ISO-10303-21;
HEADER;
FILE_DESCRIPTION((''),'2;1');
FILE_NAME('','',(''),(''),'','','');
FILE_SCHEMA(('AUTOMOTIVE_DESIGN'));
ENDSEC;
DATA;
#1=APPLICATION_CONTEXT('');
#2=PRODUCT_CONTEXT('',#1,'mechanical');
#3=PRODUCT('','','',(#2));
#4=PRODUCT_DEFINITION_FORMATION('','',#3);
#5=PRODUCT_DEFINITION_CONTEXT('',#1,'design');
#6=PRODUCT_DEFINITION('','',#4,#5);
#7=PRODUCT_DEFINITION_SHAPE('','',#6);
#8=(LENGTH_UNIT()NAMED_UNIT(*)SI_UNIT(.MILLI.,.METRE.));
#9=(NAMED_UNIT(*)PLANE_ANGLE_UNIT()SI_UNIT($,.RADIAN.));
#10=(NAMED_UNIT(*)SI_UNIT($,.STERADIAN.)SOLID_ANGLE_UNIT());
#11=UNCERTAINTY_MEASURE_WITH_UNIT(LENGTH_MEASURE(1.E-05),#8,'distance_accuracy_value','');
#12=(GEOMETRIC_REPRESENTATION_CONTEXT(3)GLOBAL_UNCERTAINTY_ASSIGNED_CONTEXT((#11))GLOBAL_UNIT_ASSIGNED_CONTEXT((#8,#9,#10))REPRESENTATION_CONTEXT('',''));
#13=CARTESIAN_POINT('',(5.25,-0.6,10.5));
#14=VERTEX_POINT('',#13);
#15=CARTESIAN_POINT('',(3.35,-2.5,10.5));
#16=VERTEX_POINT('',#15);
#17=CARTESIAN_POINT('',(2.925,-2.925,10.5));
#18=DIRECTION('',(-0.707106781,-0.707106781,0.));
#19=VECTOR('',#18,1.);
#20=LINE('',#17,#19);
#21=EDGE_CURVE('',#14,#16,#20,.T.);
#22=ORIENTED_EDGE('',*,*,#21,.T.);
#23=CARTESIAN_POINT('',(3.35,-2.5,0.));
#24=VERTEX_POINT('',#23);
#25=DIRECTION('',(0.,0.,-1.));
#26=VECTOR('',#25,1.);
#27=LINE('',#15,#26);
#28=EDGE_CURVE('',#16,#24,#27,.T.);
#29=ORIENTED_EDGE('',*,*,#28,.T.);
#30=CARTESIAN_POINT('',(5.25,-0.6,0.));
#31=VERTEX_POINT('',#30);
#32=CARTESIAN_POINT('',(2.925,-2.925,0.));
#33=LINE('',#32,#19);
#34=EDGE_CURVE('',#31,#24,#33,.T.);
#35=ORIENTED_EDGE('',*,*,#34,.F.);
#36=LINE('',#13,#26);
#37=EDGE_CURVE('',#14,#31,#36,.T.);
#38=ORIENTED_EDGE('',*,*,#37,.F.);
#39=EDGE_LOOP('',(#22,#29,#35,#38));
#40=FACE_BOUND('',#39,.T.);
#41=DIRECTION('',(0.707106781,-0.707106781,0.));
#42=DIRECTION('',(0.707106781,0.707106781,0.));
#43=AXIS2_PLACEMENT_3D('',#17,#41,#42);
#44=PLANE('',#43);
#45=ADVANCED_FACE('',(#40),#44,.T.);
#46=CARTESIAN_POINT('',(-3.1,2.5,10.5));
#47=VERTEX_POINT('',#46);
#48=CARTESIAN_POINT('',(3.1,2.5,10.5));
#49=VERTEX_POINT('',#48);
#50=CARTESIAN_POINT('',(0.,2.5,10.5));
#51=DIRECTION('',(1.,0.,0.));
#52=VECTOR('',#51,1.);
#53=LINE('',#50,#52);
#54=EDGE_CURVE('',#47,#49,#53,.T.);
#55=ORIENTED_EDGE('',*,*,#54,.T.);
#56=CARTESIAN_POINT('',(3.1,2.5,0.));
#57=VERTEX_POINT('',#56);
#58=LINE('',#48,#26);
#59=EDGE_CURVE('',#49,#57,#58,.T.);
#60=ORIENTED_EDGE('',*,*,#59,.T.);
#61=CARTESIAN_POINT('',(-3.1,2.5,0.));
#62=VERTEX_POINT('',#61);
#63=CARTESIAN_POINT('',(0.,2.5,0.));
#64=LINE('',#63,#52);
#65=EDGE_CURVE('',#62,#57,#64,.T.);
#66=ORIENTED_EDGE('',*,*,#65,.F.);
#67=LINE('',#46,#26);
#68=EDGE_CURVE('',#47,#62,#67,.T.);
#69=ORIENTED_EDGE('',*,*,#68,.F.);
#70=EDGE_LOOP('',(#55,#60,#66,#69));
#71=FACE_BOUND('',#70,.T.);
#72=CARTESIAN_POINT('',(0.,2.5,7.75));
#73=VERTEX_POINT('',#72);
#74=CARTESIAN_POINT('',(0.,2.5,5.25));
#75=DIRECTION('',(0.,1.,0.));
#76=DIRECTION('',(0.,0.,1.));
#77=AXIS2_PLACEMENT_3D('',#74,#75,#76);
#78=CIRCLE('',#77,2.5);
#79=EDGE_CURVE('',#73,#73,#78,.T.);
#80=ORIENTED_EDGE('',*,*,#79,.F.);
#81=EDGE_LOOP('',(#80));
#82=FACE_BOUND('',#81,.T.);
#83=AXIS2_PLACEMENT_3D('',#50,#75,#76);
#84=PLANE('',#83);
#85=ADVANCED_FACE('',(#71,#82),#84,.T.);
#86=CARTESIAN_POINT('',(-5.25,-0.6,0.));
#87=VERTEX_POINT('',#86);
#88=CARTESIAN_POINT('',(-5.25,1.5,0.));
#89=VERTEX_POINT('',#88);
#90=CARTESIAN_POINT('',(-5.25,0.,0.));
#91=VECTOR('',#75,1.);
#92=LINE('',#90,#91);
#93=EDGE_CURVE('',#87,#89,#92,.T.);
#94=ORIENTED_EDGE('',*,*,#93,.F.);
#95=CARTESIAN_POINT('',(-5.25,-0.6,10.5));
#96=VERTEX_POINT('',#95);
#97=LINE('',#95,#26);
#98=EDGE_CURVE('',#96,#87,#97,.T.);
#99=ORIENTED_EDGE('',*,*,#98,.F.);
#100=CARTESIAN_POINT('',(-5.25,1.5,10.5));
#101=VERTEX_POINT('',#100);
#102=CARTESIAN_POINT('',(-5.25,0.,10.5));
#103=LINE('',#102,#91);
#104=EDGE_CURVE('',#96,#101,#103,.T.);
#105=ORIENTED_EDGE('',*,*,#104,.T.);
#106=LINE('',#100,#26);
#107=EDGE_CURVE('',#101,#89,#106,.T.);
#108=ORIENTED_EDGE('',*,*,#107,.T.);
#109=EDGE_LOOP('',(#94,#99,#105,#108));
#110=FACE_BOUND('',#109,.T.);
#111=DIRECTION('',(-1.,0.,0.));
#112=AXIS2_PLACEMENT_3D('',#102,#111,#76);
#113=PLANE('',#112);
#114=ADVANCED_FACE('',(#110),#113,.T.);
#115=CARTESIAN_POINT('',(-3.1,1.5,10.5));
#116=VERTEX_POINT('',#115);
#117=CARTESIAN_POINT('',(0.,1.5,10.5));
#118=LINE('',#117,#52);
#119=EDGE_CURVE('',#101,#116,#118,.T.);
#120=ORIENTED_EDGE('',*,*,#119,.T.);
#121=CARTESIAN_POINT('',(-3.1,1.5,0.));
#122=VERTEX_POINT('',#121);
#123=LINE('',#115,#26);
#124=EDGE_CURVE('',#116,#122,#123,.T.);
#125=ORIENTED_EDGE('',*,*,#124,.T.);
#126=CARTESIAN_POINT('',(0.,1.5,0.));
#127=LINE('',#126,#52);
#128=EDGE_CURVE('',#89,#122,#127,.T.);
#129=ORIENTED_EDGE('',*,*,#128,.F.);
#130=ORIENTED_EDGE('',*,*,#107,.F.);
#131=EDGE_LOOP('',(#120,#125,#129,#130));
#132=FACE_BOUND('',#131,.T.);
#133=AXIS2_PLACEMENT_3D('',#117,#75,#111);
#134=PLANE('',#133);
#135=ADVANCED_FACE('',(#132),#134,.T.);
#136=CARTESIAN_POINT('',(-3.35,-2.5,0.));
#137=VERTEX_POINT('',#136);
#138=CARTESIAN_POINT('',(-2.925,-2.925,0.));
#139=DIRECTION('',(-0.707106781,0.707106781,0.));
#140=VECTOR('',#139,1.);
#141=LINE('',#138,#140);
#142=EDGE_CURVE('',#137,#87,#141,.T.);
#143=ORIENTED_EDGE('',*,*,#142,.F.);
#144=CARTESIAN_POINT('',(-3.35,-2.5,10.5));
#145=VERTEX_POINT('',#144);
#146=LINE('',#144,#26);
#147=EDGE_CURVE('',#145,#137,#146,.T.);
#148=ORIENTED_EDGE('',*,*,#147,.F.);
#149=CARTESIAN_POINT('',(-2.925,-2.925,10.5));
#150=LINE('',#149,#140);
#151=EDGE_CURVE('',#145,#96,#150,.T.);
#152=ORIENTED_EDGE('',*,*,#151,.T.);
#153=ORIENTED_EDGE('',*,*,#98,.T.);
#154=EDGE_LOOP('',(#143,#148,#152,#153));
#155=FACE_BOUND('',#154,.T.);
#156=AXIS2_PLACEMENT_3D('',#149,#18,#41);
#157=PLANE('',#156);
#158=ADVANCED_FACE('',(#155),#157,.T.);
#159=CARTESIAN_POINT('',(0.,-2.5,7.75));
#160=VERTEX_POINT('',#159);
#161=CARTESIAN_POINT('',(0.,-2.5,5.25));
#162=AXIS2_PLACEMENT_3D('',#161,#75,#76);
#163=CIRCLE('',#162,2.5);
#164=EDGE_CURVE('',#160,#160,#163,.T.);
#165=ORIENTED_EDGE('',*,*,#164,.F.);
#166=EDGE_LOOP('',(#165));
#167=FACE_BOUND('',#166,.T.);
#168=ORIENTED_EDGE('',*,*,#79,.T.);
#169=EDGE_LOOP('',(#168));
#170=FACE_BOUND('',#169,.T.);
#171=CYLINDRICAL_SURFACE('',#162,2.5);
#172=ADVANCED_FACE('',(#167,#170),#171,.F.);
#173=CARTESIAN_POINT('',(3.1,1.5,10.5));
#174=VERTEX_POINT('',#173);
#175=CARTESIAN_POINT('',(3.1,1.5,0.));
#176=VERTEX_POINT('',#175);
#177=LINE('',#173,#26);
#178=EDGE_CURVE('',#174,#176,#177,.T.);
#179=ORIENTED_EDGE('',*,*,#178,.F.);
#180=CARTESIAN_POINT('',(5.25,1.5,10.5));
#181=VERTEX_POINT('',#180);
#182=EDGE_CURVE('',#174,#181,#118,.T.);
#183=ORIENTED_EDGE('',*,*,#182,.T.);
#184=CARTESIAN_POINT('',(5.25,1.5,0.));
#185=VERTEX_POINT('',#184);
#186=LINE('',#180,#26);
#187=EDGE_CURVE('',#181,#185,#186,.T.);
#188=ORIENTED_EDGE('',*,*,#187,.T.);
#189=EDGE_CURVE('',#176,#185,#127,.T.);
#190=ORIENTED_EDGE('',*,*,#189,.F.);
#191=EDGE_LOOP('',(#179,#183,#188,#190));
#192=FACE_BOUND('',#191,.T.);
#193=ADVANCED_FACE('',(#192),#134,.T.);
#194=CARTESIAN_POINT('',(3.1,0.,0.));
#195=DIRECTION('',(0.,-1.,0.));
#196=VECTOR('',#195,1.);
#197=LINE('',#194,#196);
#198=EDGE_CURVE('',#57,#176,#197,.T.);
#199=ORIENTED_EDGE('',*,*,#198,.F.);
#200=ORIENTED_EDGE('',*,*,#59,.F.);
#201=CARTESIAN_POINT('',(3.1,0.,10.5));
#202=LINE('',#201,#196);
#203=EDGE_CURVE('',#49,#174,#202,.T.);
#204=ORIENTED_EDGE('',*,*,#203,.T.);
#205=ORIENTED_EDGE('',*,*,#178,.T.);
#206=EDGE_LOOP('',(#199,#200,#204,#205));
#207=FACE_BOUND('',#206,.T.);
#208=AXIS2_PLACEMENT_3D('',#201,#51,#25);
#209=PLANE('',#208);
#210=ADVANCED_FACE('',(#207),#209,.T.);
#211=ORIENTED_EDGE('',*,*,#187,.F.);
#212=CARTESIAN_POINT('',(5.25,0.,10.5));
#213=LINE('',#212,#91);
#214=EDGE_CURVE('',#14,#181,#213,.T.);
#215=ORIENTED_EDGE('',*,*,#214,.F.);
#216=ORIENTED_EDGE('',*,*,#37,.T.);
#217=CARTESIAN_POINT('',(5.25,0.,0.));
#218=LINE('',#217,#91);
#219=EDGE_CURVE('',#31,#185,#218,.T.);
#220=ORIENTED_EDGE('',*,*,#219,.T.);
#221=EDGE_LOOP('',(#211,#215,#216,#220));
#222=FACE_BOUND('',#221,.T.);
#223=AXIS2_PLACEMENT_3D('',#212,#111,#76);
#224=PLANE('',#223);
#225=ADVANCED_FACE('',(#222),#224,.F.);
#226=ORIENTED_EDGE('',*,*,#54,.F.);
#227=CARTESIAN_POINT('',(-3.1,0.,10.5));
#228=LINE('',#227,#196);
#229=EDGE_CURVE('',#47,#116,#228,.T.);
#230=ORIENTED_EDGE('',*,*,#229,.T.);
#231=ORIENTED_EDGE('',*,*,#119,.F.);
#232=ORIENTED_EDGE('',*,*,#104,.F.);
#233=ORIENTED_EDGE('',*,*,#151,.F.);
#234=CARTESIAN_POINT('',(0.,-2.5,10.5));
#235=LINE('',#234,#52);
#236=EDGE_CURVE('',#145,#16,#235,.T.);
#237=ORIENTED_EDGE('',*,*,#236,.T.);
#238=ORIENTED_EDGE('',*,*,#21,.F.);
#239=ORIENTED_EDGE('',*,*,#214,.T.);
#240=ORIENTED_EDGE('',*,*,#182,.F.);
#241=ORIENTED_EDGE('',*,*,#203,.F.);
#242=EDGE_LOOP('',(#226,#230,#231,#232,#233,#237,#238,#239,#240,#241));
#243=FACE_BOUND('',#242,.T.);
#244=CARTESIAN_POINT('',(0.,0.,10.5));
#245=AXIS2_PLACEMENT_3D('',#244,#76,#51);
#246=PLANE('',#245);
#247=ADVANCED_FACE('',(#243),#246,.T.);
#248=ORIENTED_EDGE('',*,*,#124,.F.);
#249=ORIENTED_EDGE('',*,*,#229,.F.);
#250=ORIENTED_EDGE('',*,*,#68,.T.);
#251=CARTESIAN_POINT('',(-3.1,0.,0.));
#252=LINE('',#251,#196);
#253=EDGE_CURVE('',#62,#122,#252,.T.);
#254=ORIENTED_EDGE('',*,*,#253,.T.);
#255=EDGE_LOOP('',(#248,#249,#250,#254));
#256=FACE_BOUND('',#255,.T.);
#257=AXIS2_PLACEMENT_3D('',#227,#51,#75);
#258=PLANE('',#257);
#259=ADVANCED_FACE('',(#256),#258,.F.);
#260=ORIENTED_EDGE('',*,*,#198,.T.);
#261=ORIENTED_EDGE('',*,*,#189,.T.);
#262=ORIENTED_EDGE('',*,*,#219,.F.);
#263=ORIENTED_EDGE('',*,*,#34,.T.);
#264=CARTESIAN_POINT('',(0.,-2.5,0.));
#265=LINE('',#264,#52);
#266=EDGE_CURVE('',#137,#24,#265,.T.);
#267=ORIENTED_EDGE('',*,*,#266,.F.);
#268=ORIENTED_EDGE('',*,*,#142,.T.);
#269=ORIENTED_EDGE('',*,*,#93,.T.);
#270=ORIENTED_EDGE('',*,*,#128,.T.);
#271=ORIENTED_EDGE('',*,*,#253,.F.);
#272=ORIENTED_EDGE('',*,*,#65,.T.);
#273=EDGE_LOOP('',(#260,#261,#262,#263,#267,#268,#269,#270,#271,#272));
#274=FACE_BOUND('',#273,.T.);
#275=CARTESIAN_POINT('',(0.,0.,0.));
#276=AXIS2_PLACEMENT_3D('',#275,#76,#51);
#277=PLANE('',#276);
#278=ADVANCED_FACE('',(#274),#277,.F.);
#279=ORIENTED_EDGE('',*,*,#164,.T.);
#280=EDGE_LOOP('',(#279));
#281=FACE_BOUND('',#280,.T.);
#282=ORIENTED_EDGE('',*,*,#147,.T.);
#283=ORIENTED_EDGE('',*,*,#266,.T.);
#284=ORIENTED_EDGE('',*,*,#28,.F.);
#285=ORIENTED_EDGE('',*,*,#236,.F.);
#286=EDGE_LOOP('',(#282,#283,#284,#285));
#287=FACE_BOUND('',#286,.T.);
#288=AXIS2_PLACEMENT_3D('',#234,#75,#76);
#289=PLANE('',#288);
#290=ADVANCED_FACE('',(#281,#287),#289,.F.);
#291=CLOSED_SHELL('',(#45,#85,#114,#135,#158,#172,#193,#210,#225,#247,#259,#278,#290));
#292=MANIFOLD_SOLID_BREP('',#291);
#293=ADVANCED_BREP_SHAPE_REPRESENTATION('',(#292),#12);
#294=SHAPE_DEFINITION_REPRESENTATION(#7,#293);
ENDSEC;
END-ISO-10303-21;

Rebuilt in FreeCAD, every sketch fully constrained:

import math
import FreeCAD as App
import Part
import Sketcher
from FreeCAD import Vector


def add_polygon(sketch, points):
    """Adds a closed chain of lines whose ends are joined by coincident constraints."""
    first, n = sketch.GeometryCount, len(points)
    for a, b in zip(points, points[1:] + points[:1]):
        sketch.addGeometry(Part.LineSegment(App.Vector(*a, 0), App.Vector(*b, 0)), False)
    for i in range(n):
        sketch.addConstraint(Sketcher.Constraint("Coincident", first + i, 2, first + (i + 1) % n, 1))

doc = App.newDocument("Part")
body = doc.addObject("PartDesign::Body", "Body")

# Sketch on XY plane
sketch1 = doc.addObject("Sketcher::SketchObject", "Sketch")
body.addObject(sketch1)
sketch1.AttachmentSupport = (doc.XY_Plane, [""])
sketch1.MapMode = "FlatFace"
add_polygon(sketch1, [(-5.25, 1.5), (-5.25, -0.6), (-3.35, -2.5), (3.35, -2.5), (5.25, -0.6), (5.25, 1.5), (3.1, 1.5), (3.1, 2.5), (-3.1, 2.5), (-3.1, 1.5)])  # lines 0-9
sketch1.addConstraint([
    Sketcher.Constraint("Vertical", 0),
    Sketcher.Constraint("Horizontal", 2),
    Sketcher.Constraint("Vertical", 4),
    Sketcher.Constraint("Horizontal", 5),
    Sketcher.Constraint("Vertical", 6),
    Sketcher.Constraint("Horizontal", 7),
    Sketcher.Constraint("Vertical", 8),
    Sketcher.Constraint("Horizontal", 9),
    Sketcher.Constraint("Symmetric", 0, 2, 3, 2, -2),
    Sketcher.Constraint("Symmetric", 5, 2, 8, 2, -2),
    Sketcher.Constraint("Perpendicular", 1, 3),
    Sketcher.Constraint("Equal", 1, 3),
    Sketcher.Constraint("DistanceY", 6, 1, 6, 2, 1.0),
    Sketcher.Constraint("DistanceX", 2, 1, 2, 2, 6.7),
    Sketcher.Constraint("DistanceX", 7, 2, 7, 1, 6.2),
    Sketcher.Constraint("DistanceY", 0, 2, 0, 1, 2.1),
    Sketcher.Constraint("DistanceY", 2, 2, 4, 2, 4.0),
    Sketcher.Constraint("DistanceY", 0, 2, -1, 1, 0.6),
])
pad1 = doc.addObject("PartDesign::Pad", "Pad")
body.addObject(pad1)
pad1.Profile = sketch1
pad1.Length = 10.5

# Sketch on XZ plane
sketch2 = doc.addObject("Sketcher::SketchObject", "Sketch001")
body.addObject(sketch2)
sketch2.AttachmentSupport = (doc.XZ_Plane, [""])
sketch2.MapMode = "FlatFace"
sketch2.AttachmentOffset = App.Placement(Vector(0, 0, -2.5), App.Rotation())
sketch2.addGeometry([
    Part.ArcOfCircle(Part.Circle(Vector(0, 5.25, 0), Vector(0, 0, 1), 2.5), math.radians(-120.560839), math.radians(0)),
    Part.ArcOfCircle(Part.Circle(Vector(0, 5.25, 0), Vector(0, 0, 1), 2.5), math.radians(59.439161), math.radians(239.439161)),
    Part.ArcOfCircle(Part.Circle(Vector(0, 5.25, 0), Vector(0, 0, 1), 2.5), math.radians(0), math.radians(59.439161)),
], False)
sketch2.addConstraint([
    Sketcher.Constraint("Tangent", 0, 1, 1, 2),
    Sketcher.Constraint("Tangent", 1, 1, 2, 2),
    Sketcher.Constraint("Tangent", 2, 1, 0, 2),
    Sketcher.Constraint("PointOnObject", 0, 3, -2),
    Sketcher.Constraint("Horizontal", 1, 3, 2, 1),
    Sketcher.Constraint("Radius", 0, 2.5),
    Sketcher.Constraint("DistanceY", -1, 1, 0, 3, 5.25),
    Sketcher.Constraint("DistanceY", 0, 1, 1, 1, 4.305449),
    Sketcher.Constraint("DistanceX", 0, 1, -1, 1, 1.271132),
])
pocket1 = doc.addObject("PartDesign::Pocket", "Pocket")
body.addObject(pocket1)
pocket1.Profile = sketch2
pocket1.Type = "ThroughAll"
pocket1.Reversed = True

doc.recompute()
